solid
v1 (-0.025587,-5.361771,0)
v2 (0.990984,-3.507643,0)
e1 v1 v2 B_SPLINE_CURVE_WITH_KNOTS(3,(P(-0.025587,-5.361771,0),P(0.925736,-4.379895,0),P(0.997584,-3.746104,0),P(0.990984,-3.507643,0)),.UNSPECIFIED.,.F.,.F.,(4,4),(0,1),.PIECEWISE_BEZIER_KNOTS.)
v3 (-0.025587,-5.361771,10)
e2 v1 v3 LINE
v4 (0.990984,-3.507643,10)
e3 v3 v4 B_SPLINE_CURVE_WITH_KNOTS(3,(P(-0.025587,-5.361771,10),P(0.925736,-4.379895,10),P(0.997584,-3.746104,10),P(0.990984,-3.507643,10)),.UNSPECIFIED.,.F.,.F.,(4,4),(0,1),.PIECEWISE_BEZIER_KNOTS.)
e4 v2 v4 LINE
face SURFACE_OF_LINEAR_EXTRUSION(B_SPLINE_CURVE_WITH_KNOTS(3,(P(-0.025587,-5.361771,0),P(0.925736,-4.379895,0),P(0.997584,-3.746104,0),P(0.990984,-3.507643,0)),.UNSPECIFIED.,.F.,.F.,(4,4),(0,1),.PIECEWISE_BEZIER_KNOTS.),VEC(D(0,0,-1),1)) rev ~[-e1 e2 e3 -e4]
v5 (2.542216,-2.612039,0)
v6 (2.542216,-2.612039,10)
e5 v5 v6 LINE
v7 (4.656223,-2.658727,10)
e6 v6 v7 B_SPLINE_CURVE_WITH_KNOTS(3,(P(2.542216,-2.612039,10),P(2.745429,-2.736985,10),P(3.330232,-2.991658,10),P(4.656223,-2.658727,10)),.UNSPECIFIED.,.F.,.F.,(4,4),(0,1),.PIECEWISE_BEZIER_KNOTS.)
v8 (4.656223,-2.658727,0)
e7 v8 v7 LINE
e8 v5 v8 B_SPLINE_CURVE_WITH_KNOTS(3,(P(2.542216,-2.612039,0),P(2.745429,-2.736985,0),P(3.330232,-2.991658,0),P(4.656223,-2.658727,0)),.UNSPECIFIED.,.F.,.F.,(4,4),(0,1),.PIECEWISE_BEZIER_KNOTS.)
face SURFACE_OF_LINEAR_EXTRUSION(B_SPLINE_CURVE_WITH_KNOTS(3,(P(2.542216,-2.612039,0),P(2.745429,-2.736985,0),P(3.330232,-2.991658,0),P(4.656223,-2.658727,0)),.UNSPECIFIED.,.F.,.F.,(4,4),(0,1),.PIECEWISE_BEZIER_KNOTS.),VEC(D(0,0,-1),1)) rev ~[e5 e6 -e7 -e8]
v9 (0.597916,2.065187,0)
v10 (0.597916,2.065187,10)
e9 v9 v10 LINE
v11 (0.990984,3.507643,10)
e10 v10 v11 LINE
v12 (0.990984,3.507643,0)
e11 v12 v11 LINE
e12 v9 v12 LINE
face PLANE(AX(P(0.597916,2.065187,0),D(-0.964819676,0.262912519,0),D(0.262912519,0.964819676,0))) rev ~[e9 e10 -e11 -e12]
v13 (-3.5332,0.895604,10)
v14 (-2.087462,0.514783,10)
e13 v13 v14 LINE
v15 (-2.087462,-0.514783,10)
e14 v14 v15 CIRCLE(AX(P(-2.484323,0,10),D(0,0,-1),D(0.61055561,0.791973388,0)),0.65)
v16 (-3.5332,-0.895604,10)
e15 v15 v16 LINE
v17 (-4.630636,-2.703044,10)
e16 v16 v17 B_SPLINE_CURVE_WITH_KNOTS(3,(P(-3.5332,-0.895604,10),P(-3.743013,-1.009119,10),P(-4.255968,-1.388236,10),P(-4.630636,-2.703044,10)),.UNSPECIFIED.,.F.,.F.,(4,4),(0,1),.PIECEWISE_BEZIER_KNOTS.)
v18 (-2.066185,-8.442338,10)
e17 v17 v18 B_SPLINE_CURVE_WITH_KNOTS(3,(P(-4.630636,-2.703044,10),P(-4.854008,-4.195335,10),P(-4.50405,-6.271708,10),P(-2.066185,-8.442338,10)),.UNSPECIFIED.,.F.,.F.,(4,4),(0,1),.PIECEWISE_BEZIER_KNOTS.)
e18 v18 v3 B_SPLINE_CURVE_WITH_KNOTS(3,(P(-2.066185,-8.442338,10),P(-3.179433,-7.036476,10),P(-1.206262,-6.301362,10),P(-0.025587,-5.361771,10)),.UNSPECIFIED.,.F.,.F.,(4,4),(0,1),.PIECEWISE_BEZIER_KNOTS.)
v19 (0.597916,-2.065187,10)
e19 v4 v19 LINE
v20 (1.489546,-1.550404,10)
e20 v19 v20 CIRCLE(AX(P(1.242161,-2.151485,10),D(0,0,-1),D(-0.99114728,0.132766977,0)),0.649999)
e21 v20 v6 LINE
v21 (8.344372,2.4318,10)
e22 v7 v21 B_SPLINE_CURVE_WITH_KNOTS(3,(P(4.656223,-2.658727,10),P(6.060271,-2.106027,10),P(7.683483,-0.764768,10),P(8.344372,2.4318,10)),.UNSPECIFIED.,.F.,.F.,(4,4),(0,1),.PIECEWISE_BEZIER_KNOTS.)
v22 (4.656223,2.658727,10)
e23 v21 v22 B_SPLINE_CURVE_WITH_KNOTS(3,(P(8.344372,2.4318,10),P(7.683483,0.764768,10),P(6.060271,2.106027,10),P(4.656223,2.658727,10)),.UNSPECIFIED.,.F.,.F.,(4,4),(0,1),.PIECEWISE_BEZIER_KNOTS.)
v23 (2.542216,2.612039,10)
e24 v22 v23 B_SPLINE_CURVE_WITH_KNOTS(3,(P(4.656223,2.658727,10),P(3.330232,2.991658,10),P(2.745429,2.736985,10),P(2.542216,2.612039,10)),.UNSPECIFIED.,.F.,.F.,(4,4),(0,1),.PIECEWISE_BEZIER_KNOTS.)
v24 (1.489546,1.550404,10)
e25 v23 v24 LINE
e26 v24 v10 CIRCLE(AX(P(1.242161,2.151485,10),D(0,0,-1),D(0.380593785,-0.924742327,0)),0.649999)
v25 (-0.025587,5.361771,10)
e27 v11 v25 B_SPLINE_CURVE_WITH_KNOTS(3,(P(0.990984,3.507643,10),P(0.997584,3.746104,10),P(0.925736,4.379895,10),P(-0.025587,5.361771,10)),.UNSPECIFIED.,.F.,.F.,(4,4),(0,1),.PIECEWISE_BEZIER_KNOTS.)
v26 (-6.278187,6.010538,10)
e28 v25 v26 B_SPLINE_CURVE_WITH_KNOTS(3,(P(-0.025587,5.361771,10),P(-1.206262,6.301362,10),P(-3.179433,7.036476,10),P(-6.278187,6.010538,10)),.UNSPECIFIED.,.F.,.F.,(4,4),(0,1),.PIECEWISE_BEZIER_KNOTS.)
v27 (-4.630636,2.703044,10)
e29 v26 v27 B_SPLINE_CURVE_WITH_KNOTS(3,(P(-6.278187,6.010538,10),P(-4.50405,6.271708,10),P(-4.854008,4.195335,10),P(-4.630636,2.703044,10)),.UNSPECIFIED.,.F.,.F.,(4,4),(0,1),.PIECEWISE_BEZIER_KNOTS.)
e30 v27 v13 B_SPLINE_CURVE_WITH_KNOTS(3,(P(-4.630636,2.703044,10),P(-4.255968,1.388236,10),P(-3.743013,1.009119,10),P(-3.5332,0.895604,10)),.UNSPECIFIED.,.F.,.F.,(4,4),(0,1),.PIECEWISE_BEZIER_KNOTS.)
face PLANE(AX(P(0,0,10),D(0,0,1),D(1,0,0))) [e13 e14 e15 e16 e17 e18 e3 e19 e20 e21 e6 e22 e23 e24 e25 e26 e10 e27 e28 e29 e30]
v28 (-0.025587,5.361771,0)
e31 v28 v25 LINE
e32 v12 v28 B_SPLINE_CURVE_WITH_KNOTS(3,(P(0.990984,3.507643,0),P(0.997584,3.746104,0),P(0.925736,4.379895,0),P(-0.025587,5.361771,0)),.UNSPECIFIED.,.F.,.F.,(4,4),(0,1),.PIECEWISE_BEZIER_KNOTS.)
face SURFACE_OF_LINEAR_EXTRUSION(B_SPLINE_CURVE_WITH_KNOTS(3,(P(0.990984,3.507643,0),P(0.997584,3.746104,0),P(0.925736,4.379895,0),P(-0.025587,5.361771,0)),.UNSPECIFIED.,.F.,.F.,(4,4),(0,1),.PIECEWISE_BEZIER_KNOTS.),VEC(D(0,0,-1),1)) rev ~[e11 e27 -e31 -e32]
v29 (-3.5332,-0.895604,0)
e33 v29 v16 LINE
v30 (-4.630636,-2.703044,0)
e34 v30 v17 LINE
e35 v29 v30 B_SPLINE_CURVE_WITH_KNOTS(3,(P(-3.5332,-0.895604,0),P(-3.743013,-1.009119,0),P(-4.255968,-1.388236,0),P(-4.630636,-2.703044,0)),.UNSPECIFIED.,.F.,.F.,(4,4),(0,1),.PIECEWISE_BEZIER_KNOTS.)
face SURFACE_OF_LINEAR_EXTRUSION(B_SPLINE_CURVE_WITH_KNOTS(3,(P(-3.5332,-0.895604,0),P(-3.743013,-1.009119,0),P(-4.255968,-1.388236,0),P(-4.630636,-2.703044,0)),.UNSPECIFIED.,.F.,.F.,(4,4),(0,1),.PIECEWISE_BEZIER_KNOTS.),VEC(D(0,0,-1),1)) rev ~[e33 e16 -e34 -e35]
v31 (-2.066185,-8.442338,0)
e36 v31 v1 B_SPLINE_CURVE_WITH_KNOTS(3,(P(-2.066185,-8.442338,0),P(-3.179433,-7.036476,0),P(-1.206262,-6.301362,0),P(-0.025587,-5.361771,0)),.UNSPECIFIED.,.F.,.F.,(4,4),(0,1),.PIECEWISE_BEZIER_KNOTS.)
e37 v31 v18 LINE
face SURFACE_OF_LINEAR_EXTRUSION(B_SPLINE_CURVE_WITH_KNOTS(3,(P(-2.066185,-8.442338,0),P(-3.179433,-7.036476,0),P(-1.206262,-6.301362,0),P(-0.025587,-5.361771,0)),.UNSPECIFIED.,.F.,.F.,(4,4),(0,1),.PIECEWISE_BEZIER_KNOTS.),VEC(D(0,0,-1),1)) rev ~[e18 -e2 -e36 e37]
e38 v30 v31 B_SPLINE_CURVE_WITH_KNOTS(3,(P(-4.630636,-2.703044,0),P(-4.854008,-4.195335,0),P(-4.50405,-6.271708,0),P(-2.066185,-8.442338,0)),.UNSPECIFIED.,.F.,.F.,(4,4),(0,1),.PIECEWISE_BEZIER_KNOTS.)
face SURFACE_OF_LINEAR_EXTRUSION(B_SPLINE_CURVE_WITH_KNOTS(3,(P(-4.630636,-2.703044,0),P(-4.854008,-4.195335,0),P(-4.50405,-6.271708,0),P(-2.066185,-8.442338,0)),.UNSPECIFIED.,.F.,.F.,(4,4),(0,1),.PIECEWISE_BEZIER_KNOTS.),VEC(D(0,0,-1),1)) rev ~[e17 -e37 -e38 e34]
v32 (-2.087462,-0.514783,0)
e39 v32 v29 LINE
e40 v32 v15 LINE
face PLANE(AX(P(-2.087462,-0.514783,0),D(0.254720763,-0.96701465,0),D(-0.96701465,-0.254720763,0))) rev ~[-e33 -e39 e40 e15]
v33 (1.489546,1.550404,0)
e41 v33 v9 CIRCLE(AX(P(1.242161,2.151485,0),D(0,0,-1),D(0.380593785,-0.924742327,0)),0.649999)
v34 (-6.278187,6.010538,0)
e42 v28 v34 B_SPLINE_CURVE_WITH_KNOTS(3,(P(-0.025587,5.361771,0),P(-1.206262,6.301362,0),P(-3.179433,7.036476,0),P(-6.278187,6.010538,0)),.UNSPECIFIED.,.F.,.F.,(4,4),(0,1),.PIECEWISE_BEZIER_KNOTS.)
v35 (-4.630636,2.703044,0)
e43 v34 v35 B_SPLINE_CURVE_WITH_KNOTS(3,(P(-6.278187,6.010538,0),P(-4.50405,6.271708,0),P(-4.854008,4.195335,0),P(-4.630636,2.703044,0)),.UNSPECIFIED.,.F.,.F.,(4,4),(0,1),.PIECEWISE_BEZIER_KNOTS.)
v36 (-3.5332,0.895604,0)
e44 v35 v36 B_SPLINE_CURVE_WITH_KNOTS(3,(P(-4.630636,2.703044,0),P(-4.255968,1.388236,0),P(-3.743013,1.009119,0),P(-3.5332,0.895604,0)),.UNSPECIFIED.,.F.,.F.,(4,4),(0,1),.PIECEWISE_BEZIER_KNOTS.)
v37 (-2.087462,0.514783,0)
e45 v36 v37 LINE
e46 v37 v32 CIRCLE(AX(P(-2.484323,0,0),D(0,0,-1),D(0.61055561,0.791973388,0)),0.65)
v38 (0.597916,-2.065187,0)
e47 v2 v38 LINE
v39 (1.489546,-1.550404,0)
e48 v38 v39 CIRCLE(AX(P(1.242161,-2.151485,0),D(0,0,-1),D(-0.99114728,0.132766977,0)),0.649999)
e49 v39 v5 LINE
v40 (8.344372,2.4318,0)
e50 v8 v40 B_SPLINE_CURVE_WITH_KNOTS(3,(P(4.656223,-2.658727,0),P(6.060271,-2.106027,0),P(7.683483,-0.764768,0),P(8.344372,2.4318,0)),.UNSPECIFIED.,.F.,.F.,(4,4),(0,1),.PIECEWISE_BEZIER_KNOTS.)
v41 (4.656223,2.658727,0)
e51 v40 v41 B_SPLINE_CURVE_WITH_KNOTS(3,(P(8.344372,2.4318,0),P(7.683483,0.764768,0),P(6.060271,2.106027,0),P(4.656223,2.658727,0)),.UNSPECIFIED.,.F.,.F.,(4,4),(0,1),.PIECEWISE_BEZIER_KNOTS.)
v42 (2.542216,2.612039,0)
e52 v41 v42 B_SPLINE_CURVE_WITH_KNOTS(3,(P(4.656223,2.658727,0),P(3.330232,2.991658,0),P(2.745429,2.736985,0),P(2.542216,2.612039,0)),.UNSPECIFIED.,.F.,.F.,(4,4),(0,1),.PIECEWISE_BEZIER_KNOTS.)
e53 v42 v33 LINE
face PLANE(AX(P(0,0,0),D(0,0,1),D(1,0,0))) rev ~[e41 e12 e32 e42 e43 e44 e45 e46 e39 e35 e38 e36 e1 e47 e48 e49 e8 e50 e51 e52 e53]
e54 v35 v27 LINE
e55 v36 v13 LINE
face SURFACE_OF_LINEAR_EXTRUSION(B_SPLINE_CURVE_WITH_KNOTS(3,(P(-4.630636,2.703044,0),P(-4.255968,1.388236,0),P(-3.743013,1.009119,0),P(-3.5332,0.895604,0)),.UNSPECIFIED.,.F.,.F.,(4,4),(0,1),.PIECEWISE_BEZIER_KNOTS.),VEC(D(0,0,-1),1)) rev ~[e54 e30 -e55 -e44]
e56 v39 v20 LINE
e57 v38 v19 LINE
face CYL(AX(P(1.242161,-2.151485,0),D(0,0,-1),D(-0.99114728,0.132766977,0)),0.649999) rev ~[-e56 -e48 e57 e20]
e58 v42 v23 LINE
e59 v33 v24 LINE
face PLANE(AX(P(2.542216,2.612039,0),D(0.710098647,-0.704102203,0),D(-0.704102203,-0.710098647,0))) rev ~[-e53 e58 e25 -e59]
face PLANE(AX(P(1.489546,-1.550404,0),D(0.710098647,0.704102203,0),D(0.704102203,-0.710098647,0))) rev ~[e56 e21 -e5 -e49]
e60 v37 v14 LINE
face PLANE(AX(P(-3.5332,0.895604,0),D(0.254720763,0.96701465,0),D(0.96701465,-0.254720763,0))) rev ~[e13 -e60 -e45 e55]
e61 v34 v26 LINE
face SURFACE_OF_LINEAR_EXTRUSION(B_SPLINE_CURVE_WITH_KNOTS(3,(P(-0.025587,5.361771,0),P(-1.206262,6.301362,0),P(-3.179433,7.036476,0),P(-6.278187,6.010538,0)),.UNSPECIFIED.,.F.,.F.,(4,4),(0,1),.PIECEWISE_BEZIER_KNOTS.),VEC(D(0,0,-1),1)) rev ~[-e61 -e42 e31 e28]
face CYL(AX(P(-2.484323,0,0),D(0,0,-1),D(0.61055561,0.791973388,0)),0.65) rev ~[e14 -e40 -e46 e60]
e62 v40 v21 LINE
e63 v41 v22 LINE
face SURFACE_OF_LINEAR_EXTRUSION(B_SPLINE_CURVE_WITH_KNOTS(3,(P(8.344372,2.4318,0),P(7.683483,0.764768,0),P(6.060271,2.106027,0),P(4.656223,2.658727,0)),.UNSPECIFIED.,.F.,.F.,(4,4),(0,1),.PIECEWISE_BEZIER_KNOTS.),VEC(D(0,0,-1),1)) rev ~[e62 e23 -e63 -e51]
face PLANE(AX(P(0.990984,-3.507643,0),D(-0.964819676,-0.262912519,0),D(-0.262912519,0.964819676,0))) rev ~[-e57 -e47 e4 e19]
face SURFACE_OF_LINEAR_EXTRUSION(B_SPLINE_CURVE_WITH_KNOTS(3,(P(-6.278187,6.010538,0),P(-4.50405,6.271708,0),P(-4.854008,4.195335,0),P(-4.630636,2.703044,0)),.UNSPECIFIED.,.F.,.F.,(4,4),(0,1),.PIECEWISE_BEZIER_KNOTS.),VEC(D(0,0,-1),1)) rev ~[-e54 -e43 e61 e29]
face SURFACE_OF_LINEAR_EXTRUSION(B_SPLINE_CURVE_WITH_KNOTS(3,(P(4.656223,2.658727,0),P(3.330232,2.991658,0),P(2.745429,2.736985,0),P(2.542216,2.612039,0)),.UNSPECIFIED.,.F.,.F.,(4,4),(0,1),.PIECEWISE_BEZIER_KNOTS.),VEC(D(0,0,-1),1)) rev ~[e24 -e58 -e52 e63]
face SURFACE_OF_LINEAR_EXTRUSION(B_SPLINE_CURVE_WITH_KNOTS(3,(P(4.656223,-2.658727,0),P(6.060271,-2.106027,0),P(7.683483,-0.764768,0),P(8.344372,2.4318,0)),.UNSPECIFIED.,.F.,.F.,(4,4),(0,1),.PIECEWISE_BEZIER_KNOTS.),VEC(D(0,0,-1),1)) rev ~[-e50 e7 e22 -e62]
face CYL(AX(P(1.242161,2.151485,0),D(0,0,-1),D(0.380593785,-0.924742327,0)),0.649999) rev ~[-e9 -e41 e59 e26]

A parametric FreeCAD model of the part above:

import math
import FreeCAD as App
import Part
import Sketcher
Q = App.Units.Quantity

doc = App.newDocument("Part")
body = doc.addObject("PartDesign::Body", "Body")

# Sketch on XY plane
sketch1 = doc.addObject("Sketcher::SketchObject", "Sketch")
body.addObject(sketch1)
sketch1.AttachmentSupport = (doc.XY_Plane, [""])
sketch1.MapMode = "FlatFace"
sketch1.addGeometry(Part.LineSegment(App.Vector(1.489546, -1.550404, 0), App.Vector(2.542216, -2.612039, 0)), False)
sketch1.addGeometry(Part.BSplineCurve([App.Vector(2.542216, -2.612039, 0), App.Vector(2.745429, -2.736985, 0), App.Vector(3.330232, -2.991658, 0), App.Vector(4.656223, -2.658727, 0)], [4, 4], [0, 1], False, 3, [1, 1, 1, 1], False), False)
sketch1.addGeometry(Part.BSplineCurve([App.Vector(4.656223, -2.658727, 0), App.Vector(6.060271, -2.106027, 0), App.Vector(7.683483, -0.764768, 0), App.Vector(8.344372, 2.4318, 0)], [4, 4], [0, 1], False, 3, [1, 1, 1, 1], False), False)
sketch1.addGeometry(Part.BSplineCurve([App.Vector(8.344372, 2.4318, 0), App.Vector(7.683483, 0.764768, 0), App.Vector(6.060271, 2.106027, 0), App.Vector(4.656223, 2.658727, 0)], [4, 4], [0, 1], False, 3, [1, 1, 1, 1], False), False)
sketch1.addGeometry(Part.BSplineCurve([App.Vector(4.656223, 2.658727, 0), App.Vector(3.330232, 2.991658, 0), App.Vector(2.745429, 2.736985, 0), App.Vector(2.542216, 2.612039, 0)], [4, 4], [0, 1], False, 3, [1, 1, 1, 1], False), False)
sketch1.addGeometry(Part.LineSegment(App.Vector(2.542216, 2.612039, 0), App.Vector(1.489546, 1.550404, 0)), False)
sketch1.addGeometry(Part.ArcOfCircle(Part.Circle(App.Vector(1.242161, 2.151485, 0), App.Vector(0, 0, 1), 0.649999), math.radians(-172.370485), math.radians(-67.629532)), False)
sketch1.addGeometry(Part.LineSegment(App.Vector(0.597916, 2.065187, 0), App.Vector(0.990984, 3.507643, 0)), False)
sketch1.addGeometry(Part.BSplineCurve([App.Vector(0.990984, 3.507643, 0), App.Vector(0.997584, 3.746104, 0), App.Vector(0.925736, 4.379895, 0), App.Vector(-0.025587, 5.361771, 0)], [4, 4], [0, 1], False, 3, [1, 1, 1, 1], False), False)
sketch1.addGeometry(Part.BSplineCurve([App.Vector(-0.025587, 5.361771, 0), App.Vector(-1.206262, 6.301362, 0), App.Vector(-3.179433, 7.036476, 0), App.Vector(-6.278187, 6.010538, 0)], [4, 4], [0, 1], False, 3, [1, 1, 1, 1], False), False)
sketch1.addGeometry(Part.BSplineCurve([App.Vector(-6.278187, 6.010538, 0), App.Vector(-4.50405, 6.271708, 0), App.Vector(-4.854008, 4.195335, 0), App.Vector(-4.630636, 2.703044, 0)], [4, 4], [0, 1], False, 3, [1, 1, 1, 1], False), False)
sketch1.addGeometry(Part.BSplineCurve([App.Vector(-4.630636, 2.703044, 0), App.Vector(-4.255968, 1.388236, 0), App.Vector(-3.743013, 1.009119, 0), App.Vector(-3.5332, 0.895604, 0)], [4, 4], [0, 1], False, 3, [1, 1, 1, 1], False), False)
sketch1.addGeometry(Part.LineSegment(App.Vector(-3.5332, 0.895604, 0), App.Vector(-2.087462, 0.514783, 0)), False)
sketch1.addGeometry(Part.ArcOfCircle(Part.Circle(App.Vector(-2.484323, 0, 0), App.Vector(0, 0, 1), 0.65), math.radians(-52.370312), math.radians(52.370312)), False)
sketch1.addGeometry(Part.LineSegment(App.Vector(-2.087462, -0.514783, 0), App.Vector(-3.5332, -0.895604, 0)), False)
sketch1.addGeometry(Part.BSplineCurve([App.Vector(-3.5332, -0.895604, 0), App.Vector(-3.743013, -1.009119, 0), App.Vector(-4.255968, -1.388236, 0), App.Vector(-4.630636, -2.703044, 0)], [4, 4], [0, 1], False, 3, [1, 1, 1, 1], False), False)
sketch1.addGeometry(Part.BSplineCurve([App.Vector(-4.630636, -2.703044, 0), App.Vector(-4.854008, -4.195335, 0), App.Vector(-4.50405, -6.271708, 0), App.Vector(-2.066185, -8.442338, 0)], [4, 4], [0, 1], False, 3, [1, 1, 1, 1], False), False)
sketch1.addGeometry(Part.BSplineCurve([App.Vector(-2.066185, -8.442338, 0), App.Vector(-3.179433, -7.036476, 0), App.Vector(-1.206262, -6.301362, 0), App.Vector(-0.025587, -5.361771, 0)], [4, 4], [0, 1], False, 3, [1, 1, 1, 1], False), False)
sketch1.addGeometry(Part.BSplineCurve([App.Vector(-0.025587, -5.361771, 0), App.Vector(0.925736, -4.379895, 0), App.Vector(0.997584, -3.746104, 0), App.Vector(0.990984, -3.507643, 0)], [4, 4], [0, 1], False, 3, [1, 1, 1, 1], False), False)
sketch1.addGeometry(Part.LineSegment(App.Vector(0.990984, -3.507643, 0), App.Vector(0.597916, -2.065187, 0)), False)
sketch1.addGeometry(Part.ArcOfCircle(Part.Circle(App.Vector(1.242161, -2.151485, 0), App.Vector(0, 0, 1), 0.649999), math.radians(67.629532), math.radians(172.370485)), False)
sketch1.addConstraint(Sketcher.Constraint("Block", 1))
sketch1.addConstraint(Sketcher.Constraint("Block", 2))
sketch1.addConstraint(Sketcher.Constraint("Block", 3))
sketch1.addConstraint(Sketcher.Constraint("Block", 4))
sketch1.addConstraint(Sketcher.Constraint("Block", 8))
sketch1.addConstraint(Sketcher.Constraint("Block", 9))
sketch1.addConstraint(Sketcher.Constraint("Block", 10))
sketch1.addConstraint(Sketcher.Constraint("Block", 11))
sketch1.addConstraint(Sketcher.Constraint("Block", 15))
sketch1.addConstraint(Sketcher.Constraint("Block", 16))
sketch1.addConstraint(Sketcher.Constraint("Block", 17))
sketch1.addConstraint(Sketcher.Constraint("Block", 18))
sketch1.addConstraint(Sketcher.Constraint("Coincident", 0, 2, 1, 1))
sketch1.addConstraint(Sketcher.Constraint("Coincident", 4, 2, 5, 1))
sketch1.addConstraint(Sketcher.Constraint("Coincident", 5, 2, 6, 2))
sketch1.addConstraint(Sketcher.Constraint("Coincident", 6, 1, 7, 1))
sketch1.addConstraint(Sketcher.Constraint("Coincident", 7, 2, 8, 1))
sketch1.addConstraint(Sketcher.Constraint("Coincident", 11, 2, 12, 1))
sketch1.addConstraint(Sketcher.Constraint("Coincident", 12, 2, 13, 2))
sketch1.addConstraint(Sketcher.Constraint("Coincident", 13, 1, 14, 1))
sketch1.addConstraint(Sketcher.Constraint("Coincident", 14, 2, 15, 1))
sketch1.addConstraint(Sketcher.Constraint("Coincident", 18, 2, 19, 1))
sketch1.addConstraint(Sketcher.Constraint("Coincident", 19, 2, 20, 2))
sketch1.addConstraint(Sketcher.Constraint("Coincident", 20, 1, 0, 1))
sketch1.addConstraint(Sketcher.Constraint("PointOnObject", 13, 3, -1))
sketch1.addConstraint(Sketcher.Constraint("Radius", 6, Q("0.649999 mm")))
sketch1.addConstraint(Sketcher.Constraint("Radius", 13, Q("0.65 mm")))
sketch1.addConstraint(Sketcher.Constraint("Radius", 20, Q("0.649999 mm")))
sketch1.addConstraint(Sketcher.Constraint("DistanceY", 6, 1, 6, 3, Q("0.086298 mm")))
sketch1.addConstraint(Sketcher.Constraint("DistanceX", 6, 1, 0, 2, Q("1.9443 mm")))
sketch1.addConstraint(Sketcher.Constraint("DistanceY", 20, 3, 19, 2, Q("0.086298 mm")))
sketch1.addConstraint(Sketcher.Constraint("DistanceX", 19, 2, 0, 2, Q("1.9443 mm")))
sketch1.addConstraint(Sketcher.Constraint("DistanceX", 12, 2, -1, 1, Q("2.087462 mm")))
sketch1.addConstraint(Sketcher.Constraint("DistanceY", 20, 3, 6, 3, Q("4.302971 mm")))
sketch1.addConstraint(Sketcher.Constraint("DistanceX", 13, 3, 0, 2, Q("5.026539 mm")))
sketch1.addConstraint(Sketcher.Constraint("DistanceY", 5, 2, 6, 3, Q("0.601081 mm")))
sketch1.addConstraint(Sketcher.Constraint("DistanceY", 5, 2, 7, 2, Q("1.957239 mm")))
sketch1.addConstraint(Sketcher.Constraint("DistanceX", 13, 3, 13, 1, Q("0.396861 mm")))
sketch1.addConstraint(Sketcher.Constraint("DistanceY", 20, 3, 20, 1, Q("0.601081 mm")))
pad1 = doc.addObject("PartDesign::Pad", "Pad")
body.addObject(pad1)
pad1.Profile = sketch1
pad1.Length = 10

doc.recompute()
